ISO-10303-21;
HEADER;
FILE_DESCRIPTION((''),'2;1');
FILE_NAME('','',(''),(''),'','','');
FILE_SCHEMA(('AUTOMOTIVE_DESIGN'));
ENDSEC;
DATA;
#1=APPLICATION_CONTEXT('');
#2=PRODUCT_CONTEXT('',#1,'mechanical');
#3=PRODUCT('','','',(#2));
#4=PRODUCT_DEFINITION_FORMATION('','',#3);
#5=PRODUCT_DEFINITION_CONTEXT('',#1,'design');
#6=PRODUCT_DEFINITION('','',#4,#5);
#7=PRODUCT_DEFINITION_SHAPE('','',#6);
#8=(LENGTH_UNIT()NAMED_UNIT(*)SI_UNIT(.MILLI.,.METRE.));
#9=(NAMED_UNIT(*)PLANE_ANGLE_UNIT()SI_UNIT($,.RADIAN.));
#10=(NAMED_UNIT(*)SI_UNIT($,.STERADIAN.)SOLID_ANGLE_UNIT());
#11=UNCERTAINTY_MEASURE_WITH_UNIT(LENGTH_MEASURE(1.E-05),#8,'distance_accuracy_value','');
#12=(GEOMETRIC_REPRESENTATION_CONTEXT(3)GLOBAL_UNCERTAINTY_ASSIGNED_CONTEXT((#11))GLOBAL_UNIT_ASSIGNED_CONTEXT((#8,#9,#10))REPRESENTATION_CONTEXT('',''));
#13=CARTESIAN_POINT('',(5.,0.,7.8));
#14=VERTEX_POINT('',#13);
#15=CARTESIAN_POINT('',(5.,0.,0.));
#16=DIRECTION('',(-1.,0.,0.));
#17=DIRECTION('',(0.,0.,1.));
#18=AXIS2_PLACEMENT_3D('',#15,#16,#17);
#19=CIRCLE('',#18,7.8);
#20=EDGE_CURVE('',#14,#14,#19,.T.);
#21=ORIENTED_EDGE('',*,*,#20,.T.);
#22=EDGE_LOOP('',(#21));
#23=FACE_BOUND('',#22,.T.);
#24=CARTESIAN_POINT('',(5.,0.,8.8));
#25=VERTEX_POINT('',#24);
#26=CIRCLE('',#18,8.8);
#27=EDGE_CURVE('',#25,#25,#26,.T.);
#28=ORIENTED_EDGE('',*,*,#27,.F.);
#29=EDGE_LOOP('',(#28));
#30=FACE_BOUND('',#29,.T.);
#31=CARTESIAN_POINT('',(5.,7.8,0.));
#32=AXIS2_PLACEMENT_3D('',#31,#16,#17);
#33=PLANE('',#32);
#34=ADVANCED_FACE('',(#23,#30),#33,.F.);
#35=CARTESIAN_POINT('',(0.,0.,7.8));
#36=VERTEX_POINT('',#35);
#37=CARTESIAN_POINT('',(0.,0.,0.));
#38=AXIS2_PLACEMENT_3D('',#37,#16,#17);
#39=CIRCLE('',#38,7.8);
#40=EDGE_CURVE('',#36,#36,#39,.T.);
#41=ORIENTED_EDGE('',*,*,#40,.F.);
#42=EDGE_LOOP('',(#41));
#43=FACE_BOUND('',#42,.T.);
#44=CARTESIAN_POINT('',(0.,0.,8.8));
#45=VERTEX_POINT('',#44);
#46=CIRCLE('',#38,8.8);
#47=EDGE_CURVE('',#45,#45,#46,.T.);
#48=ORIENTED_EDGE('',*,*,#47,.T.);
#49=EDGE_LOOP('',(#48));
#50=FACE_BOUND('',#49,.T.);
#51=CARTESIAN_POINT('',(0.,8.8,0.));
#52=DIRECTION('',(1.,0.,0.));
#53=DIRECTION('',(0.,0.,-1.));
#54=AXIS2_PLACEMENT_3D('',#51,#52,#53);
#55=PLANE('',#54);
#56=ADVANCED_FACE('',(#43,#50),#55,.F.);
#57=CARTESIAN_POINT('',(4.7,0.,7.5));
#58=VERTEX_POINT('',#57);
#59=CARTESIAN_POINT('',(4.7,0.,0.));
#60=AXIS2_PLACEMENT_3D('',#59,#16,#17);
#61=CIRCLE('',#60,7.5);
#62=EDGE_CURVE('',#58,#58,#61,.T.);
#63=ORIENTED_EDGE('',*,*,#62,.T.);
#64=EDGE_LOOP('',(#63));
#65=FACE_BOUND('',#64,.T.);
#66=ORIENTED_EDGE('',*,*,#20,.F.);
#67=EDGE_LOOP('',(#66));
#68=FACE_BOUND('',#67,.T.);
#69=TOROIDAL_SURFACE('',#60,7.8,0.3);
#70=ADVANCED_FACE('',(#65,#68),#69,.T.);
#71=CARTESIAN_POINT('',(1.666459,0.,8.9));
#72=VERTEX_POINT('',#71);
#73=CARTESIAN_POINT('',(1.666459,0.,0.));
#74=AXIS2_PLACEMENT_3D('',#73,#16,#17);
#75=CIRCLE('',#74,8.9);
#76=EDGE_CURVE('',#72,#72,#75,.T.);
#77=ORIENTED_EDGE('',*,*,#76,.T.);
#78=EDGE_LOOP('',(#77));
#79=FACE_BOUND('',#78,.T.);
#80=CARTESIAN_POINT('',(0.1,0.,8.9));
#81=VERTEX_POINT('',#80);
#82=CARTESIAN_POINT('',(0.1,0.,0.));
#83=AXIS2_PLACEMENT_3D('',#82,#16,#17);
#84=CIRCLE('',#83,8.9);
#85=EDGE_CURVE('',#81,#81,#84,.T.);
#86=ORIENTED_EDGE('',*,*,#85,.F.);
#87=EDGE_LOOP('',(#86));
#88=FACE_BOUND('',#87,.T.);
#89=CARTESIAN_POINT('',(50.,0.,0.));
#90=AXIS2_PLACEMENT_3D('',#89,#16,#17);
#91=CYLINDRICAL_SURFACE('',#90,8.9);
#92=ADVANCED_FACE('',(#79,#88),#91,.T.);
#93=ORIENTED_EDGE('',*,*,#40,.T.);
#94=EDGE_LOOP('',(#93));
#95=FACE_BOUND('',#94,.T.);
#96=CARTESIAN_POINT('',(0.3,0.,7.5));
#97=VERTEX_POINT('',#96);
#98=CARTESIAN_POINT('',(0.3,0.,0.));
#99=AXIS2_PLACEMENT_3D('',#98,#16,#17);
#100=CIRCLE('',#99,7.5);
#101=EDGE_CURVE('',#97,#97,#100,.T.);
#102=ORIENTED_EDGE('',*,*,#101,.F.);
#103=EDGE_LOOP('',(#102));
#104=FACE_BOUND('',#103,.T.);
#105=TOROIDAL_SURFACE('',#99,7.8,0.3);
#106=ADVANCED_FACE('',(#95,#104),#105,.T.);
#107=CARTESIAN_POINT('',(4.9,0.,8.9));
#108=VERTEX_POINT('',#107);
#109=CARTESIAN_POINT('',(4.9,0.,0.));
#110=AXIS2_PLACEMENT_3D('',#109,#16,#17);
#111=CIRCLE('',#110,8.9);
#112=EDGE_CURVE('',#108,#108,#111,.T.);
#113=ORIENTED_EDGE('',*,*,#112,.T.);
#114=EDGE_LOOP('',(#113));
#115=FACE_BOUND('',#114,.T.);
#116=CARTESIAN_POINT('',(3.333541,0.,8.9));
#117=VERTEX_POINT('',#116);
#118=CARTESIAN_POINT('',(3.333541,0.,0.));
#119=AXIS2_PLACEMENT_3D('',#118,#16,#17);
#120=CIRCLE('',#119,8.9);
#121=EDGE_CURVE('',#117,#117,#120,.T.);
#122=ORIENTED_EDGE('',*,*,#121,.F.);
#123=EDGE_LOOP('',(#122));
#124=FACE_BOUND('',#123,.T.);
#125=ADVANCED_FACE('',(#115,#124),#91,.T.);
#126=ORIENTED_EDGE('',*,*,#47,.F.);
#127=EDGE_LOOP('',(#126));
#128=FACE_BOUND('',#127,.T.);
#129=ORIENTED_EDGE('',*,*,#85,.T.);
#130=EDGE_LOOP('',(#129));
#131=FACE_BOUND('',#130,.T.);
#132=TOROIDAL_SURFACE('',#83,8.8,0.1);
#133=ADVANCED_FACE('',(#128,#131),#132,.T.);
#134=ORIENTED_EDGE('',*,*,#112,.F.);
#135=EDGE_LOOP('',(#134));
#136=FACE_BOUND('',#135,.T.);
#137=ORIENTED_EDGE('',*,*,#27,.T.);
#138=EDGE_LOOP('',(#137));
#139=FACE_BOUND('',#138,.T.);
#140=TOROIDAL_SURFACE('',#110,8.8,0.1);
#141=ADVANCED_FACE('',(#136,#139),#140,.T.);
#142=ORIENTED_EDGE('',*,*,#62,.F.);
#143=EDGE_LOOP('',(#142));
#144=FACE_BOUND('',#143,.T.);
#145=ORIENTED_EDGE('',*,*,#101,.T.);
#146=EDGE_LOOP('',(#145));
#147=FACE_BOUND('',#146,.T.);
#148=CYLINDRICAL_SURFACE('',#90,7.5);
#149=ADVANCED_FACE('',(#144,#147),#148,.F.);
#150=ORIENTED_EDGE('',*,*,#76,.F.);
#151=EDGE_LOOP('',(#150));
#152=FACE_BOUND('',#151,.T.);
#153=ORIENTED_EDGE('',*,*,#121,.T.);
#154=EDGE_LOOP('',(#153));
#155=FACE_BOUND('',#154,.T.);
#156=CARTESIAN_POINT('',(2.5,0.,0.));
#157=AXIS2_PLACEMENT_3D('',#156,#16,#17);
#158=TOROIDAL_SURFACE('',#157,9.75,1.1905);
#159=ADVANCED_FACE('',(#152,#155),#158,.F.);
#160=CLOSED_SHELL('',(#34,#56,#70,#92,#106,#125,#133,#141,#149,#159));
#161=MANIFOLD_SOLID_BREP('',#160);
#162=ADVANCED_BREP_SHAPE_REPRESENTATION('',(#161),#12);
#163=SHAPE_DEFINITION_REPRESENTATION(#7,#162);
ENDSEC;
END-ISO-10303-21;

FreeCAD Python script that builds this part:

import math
import FreeCAD as App
import Part
import Sketcher
from FreeCAD import Vector
Q = App.Units.Quantity

doc = App.newDocument("Part")
params = doc.addObject("Spreadsheet::Sheet", "Params")
for row, (alias, value) in enumerate([
    ("sketch1_radius", "0.3 mm"),
    ("sketch1_radius2", "0.1 mm"),
    ("sketch1_height", "1 mm"),
    ("sketch1_width", "4.4 mm"),
    ("revolution_angle", "360 deg"),
], start=1):
    params.set(f"A{row}", alias)
    params.set(f"B{row}", "=" + value)
    params.setAlias(f"B{row}", alias)

body = doc.addObject("PartDesign::Body", "Body")

# Sketch on XY plane
sketch1 = doc.addObject("Sketcher::SketchObject", "Sketch")
body.addObject(sketch1)
sketch1.AttachmentSupport = (doc.XY_Plane, [""])
sketch1.MapMode = "FlatFace"
sketch1.addGeometry(Part.LineSegment(Vector(0, 8.8, 0), Vector(0, 7.8, 0)), False)
sketch1.addGeometry(Part.ArcOfCircle(Part.Circle(Vector(0.3, 7.8, 0), Vector(0, 0, 1), 0.3), math.radians(-180), math.radians(-90)), False)
sketch1.addGeometry(Part.LineSegment(Vector(0.3, 7.5, 0), Vector(4.7, 7.5, 0)), False)
sketch1.addGeometry(Part.ArcOfCircle(Part.Circle(Vector(4.7, 7.8, 0), Vector(0, 0, 1), 0.3), math.radians(-90), math.radians(0)), False)
sketch1.addGeometry(Part.LineSegment(Vector(5, 7.8, 0), Vector(5, 8.8, 0)), False)
sketch1.addGeometry(Part.ArcOfCircle(Part.Circle(Vector(4.9, 8.8, 0), Vector(0, 0, 1), 0.1), math.radians(0), math.radians(90)), False)
sketch1.addGeometry(Part.LineSegment(Vector(4.9, 8.9, 0), Vector(3.33, 8.9, 0)), False)
sketch1.addGeometry(Part.ArcOfCircle(Part.Circle(Vector(2.5, 9.75, 0), Vector(0, 0, 1), 1.19), math.radians(-134), math.radians(-46)), False)
sketch1.addGeometry(Part.LineSegment(Vector(1.67, 8.9, 0), Vector(0.1, 8.9, 0)), False)
sketch1.addGeometry(Part.ArcOfCircle(Part.Circle(Vector(0.1, 8.8, 0), Vector(0, 0, 1), 0.1), math.radians(90), math.radians(180)), False)
sketch1.addConstraint(Sketcher.Constraint("Tangent", 0, 2, 1, 1))
sketch1.addConstraint(Sketcher.Constraint("Tangent", 1, 2, 2, 1))
sketch1.addConstraint(Sketcher.Constraint("Tangent", 2, 2, 3, 1))
sketch1.addConstraint(Sketcher.Constraint("Tangent", 3, 2, 4, 1))
sketch1.addConstraint(Sketcher.Constraint("Tangent", 4, 2, 5, 1))
sketch1.addConstraint(Sketcher.Constraint("Tangent", 5, 2, 6, 1))
sketch1.addConstraint(Sketcher.Constraint("Coincident", 6, 2, 7, 2))
sketch1.addConstraint(Sketcher.Constraint("Coincident", 7, 1, 8, 1))
sketch1.addConstraint(Sketcher.Constraint("Tangent", 8, 2, 9, 1))
sketch1.addConstraint(Sketcher.Constraint("Tangent", 9, 2, 0, 1))
sketch1.addConstraint(Sketcher.Constraint("Vertical", 0))
sketch1.addConstraint(Sketcher.Constraint("Horizontal", 2))
sketch1.addConstraint(Sketcher.Constraint("Vertical", 4))
sketch1.addConstraint(Sketcher.Constraint("Horizontal", 6))
sketch1.addConstraint(Sketcher.Constraint("Horizontal", 8))
sketch1.addConstraint(Sketcher.Constraint("Equal", 1, 3))
sketch1.addConstraint(Sketcher.Constraint("Equal", 5, 9))
sketch1.addConstraint(Sketcher.Constraint("PointOnObject", 0, 2, -2))
sketch1.addConstraint(Sketcher.Constraint("Horizontal", 5, 3, 9, 3))
sketch1.addConstraint(Sketcher.Constraint("Equal", 6, 8))
sketch1.addConstraint(Sketcher.Constraint("Radius", 1, Q("0.3 mm")))
sketch1.addConstraint(Sketcher.Constraint("Radius", 5, Q("0.1 mm")))
sketch1.addConstraint(Sketcher.Constraint("DistanceY", 0, 2, 0, 1, Q("1 mm")))
sketch1.addConstraint(Sketcher.Constraint("DistanceX", 2, 1, 2, 2, Q("4.4 mm")))
sketch1.addConstraint(Sketcher.Constraint("DistanceY", -1, 1, 1, 3, Q("7.8 mm")))
sketch1.addConstraint(Sketcher.Constraint("Radius", 7, Q("1.1905 mm")))
sketch1.addConstraint(Sketcher.Constraint("DistanceY", -1, 1, 7, 3, Q("9.75 mm")))
sketch1.setExpression("Constraints[20]", "Params.sketch1_radius")
sketch1.setExpression("Constraints[21]", "Params.sketch1_radius2")
sketch1.setExpression("Constraints[22]", "Params.sketch1_height")
sketch1.setExpression("Constraints[23]", "Params.sketch1_width")
revolution = doc.addObject("PartDesign::Revolution", "Revolution")
body.addObject(revolution)
revolution.Profile = sketch1
revolution.ReferenceAxis = (sketch1, ["H_Axis"])
revolution.setExpression("Angle", "Params.revolution_angle")

doc.recompute()
